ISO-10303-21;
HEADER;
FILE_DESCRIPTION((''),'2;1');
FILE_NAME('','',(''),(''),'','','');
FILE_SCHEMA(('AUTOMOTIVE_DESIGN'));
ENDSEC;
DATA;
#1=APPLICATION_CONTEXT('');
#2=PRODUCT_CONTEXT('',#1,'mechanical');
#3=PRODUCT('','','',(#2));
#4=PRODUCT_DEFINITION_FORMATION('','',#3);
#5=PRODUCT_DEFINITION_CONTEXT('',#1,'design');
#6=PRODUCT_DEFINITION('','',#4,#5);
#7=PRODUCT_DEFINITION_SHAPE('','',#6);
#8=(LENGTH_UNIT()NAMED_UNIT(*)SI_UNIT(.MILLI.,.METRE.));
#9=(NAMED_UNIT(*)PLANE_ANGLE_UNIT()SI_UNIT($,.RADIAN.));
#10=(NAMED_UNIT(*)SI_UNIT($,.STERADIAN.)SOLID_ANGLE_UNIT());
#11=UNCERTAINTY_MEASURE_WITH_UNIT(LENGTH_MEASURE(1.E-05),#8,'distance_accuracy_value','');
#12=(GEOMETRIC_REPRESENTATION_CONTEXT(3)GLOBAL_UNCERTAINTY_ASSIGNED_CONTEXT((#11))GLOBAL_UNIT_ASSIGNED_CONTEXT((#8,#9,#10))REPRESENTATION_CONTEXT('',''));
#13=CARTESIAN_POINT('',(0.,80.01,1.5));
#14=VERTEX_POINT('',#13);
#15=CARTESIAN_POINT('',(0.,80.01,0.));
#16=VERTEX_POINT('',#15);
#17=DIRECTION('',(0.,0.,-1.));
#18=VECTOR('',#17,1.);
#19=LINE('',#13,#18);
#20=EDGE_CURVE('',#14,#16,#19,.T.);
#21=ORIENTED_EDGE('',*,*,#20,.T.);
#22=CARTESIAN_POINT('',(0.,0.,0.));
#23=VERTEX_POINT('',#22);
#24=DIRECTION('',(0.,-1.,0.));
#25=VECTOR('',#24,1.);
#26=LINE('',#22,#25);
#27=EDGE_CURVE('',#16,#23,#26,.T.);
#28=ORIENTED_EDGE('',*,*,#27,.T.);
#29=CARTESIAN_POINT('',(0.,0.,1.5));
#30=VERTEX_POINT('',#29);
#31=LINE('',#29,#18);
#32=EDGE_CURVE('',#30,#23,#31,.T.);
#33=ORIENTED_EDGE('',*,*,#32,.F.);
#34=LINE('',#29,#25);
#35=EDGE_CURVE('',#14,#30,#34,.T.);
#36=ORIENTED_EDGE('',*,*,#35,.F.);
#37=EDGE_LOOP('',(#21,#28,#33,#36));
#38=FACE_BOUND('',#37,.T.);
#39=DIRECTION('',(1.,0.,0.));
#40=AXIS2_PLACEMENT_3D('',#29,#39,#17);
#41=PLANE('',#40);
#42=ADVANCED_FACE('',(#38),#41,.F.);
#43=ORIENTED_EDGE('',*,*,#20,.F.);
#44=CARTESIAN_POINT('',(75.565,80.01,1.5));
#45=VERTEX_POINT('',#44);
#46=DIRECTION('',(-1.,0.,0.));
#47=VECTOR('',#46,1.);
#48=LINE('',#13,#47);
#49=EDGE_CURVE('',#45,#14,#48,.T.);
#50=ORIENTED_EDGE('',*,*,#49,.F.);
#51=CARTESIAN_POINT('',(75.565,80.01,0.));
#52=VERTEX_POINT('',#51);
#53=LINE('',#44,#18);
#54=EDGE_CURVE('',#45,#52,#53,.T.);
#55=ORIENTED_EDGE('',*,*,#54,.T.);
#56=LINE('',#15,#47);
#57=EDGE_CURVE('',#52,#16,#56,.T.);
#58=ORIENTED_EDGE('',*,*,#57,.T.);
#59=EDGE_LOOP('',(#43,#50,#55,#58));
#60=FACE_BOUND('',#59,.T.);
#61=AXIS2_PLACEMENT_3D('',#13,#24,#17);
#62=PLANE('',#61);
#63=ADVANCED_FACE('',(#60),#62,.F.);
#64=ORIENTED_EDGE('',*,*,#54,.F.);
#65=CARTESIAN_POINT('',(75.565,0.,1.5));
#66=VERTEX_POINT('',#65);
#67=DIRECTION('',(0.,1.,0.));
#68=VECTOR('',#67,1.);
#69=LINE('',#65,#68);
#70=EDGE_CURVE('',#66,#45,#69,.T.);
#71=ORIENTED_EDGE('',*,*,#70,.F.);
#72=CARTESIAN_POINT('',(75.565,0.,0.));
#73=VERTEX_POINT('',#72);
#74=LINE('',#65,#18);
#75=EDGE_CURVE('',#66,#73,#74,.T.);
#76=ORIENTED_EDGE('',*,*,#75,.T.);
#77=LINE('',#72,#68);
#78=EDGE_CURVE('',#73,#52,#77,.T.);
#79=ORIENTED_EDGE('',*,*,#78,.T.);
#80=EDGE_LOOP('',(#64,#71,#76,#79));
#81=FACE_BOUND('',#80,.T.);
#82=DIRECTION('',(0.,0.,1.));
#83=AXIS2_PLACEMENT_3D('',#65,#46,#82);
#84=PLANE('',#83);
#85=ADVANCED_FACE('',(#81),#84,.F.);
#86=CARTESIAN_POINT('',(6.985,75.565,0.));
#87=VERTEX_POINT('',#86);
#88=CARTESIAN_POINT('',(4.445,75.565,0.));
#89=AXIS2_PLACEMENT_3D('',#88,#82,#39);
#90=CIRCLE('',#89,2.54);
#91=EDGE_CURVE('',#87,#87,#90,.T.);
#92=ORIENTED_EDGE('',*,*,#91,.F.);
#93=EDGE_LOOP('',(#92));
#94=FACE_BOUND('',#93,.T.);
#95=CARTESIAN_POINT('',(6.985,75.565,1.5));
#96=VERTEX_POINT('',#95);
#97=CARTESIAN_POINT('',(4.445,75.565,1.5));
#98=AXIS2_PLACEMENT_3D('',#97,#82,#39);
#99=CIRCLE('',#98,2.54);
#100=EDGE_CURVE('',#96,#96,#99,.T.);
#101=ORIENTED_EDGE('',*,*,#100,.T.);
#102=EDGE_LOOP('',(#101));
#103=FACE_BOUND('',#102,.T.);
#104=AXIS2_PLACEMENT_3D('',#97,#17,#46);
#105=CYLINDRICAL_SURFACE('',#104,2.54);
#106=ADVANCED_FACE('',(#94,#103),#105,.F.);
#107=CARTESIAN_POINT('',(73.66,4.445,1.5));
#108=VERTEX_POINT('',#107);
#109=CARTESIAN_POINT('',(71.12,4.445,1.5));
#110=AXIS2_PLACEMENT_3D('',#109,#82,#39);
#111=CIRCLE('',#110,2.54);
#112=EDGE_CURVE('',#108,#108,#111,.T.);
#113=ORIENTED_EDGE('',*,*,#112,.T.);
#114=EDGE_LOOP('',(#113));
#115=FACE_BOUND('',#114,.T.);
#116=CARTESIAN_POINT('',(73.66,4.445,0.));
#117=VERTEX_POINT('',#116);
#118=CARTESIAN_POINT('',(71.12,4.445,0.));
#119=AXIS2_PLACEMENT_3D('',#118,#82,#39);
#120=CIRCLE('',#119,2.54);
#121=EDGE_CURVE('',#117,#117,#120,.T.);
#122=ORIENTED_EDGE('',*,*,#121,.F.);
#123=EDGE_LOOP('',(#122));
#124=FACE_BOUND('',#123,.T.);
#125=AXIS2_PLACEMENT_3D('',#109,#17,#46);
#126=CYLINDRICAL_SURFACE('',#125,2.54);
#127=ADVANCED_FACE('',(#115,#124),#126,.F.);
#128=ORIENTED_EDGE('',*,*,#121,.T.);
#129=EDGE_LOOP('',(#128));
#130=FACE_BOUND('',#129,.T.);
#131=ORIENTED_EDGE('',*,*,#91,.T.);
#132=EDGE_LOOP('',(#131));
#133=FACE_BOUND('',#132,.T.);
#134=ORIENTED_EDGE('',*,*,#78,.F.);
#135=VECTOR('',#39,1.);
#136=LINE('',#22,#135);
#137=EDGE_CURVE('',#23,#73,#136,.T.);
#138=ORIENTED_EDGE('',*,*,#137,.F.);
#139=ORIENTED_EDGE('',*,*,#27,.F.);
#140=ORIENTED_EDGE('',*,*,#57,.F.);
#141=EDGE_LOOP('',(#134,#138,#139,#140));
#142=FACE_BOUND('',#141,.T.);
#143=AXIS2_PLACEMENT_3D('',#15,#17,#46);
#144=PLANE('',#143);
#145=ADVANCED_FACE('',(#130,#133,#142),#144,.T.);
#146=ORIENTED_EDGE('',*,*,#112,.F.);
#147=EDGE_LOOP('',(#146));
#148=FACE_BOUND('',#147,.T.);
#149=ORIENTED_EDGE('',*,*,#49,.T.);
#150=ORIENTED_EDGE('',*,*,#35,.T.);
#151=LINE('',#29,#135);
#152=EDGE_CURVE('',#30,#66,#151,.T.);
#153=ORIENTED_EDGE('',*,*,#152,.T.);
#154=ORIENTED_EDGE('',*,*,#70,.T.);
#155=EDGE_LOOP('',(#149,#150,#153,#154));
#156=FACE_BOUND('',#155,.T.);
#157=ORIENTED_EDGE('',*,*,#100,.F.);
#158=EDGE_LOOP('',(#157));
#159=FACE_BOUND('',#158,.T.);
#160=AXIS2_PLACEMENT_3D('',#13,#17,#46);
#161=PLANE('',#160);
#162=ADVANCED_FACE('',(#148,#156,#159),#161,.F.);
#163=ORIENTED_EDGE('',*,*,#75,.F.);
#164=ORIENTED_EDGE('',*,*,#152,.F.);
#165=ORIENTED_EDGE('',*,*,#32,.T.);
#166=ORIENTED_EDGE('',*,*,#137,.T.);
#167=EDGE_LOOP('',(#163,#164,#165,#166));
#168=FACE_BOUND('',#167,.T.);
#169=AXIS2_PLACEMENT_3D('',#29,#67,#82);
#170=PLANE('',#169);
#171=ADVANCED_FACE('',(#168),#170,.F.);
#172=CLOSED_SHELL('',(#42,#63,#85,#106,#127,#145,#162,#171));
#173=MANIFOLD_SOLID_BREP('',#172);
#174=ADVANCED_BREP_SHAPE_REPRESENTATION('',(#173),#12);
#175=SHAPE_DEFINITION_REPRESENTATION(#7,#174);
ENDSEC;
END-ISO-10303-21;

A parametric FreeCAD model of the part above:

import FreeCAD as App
import Part
import Sketcher

V = App.Vector
Q = App.Units.Quantity

doc = App.newDocument("Part")
body = doc.addObject("PartDesign::Body", "Body")

# Sketch on XY plane
sketch1 = body.newObject("Sketcher::SketchObject", "Sketch")
sketch1.AttachmentSupport = (doc.getObject("XY_Plane"), [""])
sketch1.MapMode = "FlatFace"
sketch1.addGeometry([
    Part.LineSegment(V(0, 80.01, 0), V(0, 0, 0)),  # 0
    Part.LineSegment(V(0, 0, 0), V(75.565, 0, 0)),  # 1
    Part.LineSegment(V(75.565, 0, 0), V(75.565, 80.01, 0)),  # 2
    Part.LineSegment(V(75.565, 80.01, 0), V(0, 80.01, 0)),  # 3
    Part.Circle(V(71.12, 4.445, 0), V(0, 0, 1), 2.54),  # 4
    Part.Circle(V(4.445, 75.565, 0), V(0, 0, 1), 2.54),  # 5
], False)
sketch1.addConstraint([
    Sketcher.Constraint("Coincident", 0, 2, 1, 1),
    Sketcher.Constraint("Coincident", 1, 2, 2, 1),
    Sketcher.Constraint("Coincident", 2, 2, 3, 1),
    Sketcher.Constraint("Coincident", 3, 2, 0, 1),
    Sketcher.Constraint("Vertical", 0),
    Sketcher.Constraint("Horizontal", 1),
    Sketcher.Constraint("Vertical", 2),
    Sketcher.Constraint("Horizontal", 3),
    Sketcher.Constraint("Coincident", 0, 2, -1, 1),
    Sketcher.Constraint("Equal", 4, 5),
    Sketcher.Constraint("Diameter", 4, Q("0.2 in")),
    Sketcher.Constraint("DistanceY", 0, 2, 0, 1, Q("3.15 in")),
    Sketcher.Constraint("DistanceX", -1, 1, 4, 3, Q("2.8 in")),
    Sketcher.Constraint("DistanceY", 4, 3, 5, 3, Q("2.8 in")),
    Sketcher.Constraint("DistanceX", 5, 3, 1, 2, Q("2.8 in")),
    Sketcher.Constraint("DistanceX", 1, 1, 1, 2, Q("2.975 in")),
    Sketcher.Constraint("DistanceY", -1, 1, 4, 3, Q("0.175 in")),
])
pad1 = body.newObject("PartDesign::Pad", "Pad")
pad1.Profile = sketch1
pad1.Length = 1.5

doc.recompute()
